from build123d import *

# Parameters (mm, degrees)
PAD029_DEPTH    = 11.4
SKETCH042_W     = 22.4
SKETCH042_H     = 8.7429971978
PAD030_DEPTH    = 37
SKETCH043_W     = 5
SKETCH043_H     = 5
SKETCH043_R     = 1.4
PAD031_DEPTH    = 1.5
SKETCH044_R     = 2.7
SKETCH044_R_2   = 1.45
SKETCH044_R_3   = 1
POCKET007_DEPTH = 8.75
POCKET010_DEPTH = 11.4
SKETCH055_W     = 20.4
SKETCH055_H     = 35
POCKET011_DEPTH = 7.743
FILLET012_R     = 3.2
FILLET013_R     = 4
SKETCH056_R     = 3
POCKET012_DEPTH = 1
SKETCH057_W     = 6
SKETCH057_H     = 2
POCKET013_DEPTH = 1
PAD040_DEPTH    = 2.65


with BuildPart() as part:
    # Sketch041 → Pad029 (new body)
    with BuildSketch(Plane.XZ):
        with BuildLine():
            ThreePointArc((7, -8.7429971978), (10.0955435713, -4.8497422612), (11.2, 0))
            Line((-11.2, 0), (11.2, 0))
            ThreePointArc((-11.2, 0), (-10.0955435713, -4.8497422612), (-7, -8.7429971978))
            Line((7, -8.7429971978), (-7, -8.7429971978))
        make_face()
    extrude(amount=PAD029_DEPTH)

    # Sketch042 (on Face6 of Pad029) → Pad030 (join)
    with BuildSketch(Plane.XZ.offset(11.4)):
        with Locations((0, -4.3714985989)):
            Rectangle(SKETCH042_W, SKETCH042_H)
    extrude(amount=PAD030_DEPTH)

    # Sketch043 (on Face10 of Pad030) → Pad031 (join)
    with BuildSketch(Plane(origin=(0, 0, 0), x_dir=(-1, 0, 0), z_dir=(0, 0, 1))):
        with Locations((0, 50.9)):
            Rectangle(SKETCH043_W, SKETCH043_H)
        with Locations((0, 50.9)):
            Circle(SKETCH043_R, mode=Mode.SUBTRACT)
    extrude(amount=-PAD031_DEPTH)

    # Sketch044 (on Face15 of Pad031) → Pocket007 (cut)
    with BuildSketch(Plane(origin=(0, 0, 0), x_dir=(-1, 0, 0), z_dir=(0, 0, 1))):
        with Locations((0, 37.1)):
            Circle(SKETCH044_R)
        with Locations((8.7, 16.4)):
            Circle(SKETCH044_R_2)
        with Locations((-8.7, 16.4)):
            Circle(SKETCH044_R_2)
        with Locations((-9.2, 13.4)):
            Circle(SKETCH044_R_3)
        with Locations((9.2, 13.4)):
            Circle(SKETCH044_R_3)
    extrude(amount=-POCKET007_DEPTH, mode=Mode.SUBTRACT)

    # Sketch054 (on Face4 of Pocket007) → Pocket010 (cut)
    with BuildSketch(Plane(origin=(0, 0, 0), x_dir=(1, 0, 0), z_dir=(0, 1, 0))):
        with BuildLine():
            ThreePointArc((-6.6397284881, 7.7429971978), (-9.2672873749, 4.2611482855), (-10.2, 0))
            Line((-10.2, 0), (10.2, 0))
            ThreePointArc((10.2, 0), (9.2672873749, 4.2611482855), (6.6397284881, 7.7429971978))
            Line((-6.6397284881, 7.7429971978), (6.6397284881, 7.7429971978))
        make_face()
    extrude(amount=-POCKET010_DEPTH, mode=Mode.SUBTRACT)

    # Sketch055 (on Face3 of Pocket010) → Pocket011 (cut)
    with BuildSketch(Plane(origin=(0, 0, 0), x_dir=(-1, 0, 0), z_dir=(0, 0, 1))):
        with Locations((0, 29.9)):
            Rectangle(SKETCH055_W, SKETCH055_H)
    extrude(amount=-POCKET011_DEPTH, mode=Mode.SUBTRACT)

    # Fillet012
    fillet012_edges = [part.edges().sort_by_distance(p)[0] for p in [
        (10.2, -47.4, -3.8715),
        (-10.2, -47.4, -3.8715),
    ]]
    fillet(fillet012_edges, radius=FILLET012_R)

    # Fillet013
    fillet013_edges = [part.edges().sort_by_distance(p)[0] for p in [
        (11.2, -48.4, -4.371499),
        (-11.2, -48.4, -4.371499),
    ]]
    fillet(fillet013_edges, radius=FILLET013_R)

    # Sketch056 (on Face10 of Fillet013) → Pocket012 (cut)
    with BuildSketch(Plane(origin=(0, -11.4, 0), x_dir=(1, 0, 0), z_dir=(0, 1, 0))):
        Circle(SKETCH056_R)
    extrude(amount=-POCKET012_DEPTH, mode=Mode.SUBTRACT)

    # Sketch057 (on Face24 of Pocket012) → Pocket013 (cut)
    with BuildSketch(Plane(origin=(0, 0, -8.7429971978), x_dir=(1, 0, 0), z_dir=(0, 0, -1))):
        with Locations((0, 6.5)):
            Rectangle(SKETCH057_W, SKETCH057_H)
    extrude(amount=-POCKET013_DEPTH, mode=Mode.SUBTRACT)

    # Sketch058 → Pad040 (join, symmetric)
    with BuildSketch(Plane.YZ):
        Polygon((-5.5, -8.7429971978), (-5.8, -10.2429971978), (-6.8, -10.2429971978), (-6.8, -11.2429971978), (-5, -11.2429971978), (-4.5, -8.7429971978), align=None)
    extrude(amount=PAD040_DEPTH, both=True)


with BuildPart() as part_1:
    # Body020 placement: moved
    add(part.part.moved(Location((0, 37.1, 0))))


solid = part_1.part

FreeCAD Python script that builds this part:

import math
import FreeCAD as App
import Part
import Sketcher
from FreeCAD import Vector
Q = App.Units.Quantity


def edges_at(feature, points):
    """Names of the edges that pass closest to the given points."""
    edges = feature.Shape.Edges
    near = lambda p: min(range(len(edges)), key=lambda i: edges[i].distToShape(Part.Vertex(*p))[0])
    return sorted({f"Edge{near(p) + 1}" for p in points})


def add_polygon(sketch, points):
    """Adds a closed chain of lines whose ends are joined by coincident constraints."""
    first, n = sketch.GeometryCount, len(points)
    for a, b in zip(points, points[1:] + points[:1]):
        sketch.addGeometry(Part.LineSegment(App.Vector(*a, 0), App.Vector(*b, 0)), False)
    for i in range(n):
        sketch.addConstraint(Sketcher.Constraint("Coincident", first + i, 2, first + (i + 1) % n, 1))

doc = App.newDocument("Part")
body = doc.addObject("PartDesign::Body", "Body")

# Sketch on XZ plane
sketch1 = doc.addObject("Sketcher::SketchObject", "Sketch")
body.addObject(sketch1)
sketch1.AttachmentSupport = (doc.XZ_Plane, [""])
sketch1.MapMode = "FlatFace"
sketch1.addGeometry([
    Part.ArcOfCircle(Part.Circle(Vector(0, 0, 0), Vector(0, 0, 1), 11.2), math.radians(-51.317813), math.radians(0)),
    Part.LineSegment(Vector(11.2, 0, 0), Vector(-11.2, 0, 0)),
    Part.ArcOfCircle(Part.Circle(Vector(0, 0, 0), Vector(0, 0, 1), 11.2), math.radians(180), math.radians(231.317813)),
    Part.LineSegment(Vector(-7, -8.742997, 0), Vector(7, -8.742997, 0)),
], False)
sketch1.addConstraint([
    Sketcher.Constraint("Coincident", 0, 2, 1, 1),
    Sketcher.Constraint("Coincident", 1, 2, 2, 1),
    Sketcher.Constraint("Coincident", 2, 2, 3, 1),
    Sketcher.Constraint("Coincident", 3, 2, 0, 1),
    Sketcher.Constraint("Horizontal", 1),
    Sketcher.Constraint("Horizontal", 3),
    Sketcher.Constraint("Coincident", 0, 3, -1, 1),
    Sketcher.Constraint("Coincident", 2, 3, -1, 1),
    Sketcher.Constraint("Equal", 0, 2),
    Sketcher.Constraint("PointOnObject", 0, 2, -1),
    Sketcher.Constraint("Radius", 0, Q("11.2 mm")),
    Sketcher.Constraint("DistanceX", 3, 1, 3, 2, Q("14 mm")),
])
pad1 = doc.addObject("PartDesign::Pad", "Pad")
body.addObject(pad1)
pad1.Profile = sketch1
pad1.Length = 11.4

# Sketch on XZ plane
sketch2 = doc.addObject("Sketcher::SketchObject", "Sketch001")
body.addObject(sketch2)
sketch2.AttachmentSupport = (doc.XZ_Plane, [""])
sketch2.MapMode = "FlatFace"
sketch2.AttachmentOffset = App.Placement(Vector(0, 0, 11.4), App.Rotation())
add_polygon(sketch2, [(-11.2, 0), (-11.2, -8.742997), (11.2, -8.742997), (11.2, 0)])  # lines 0-3
sketch2.addConstraint([
    Sketcher.Constraint("Vertical", 0),
    Sketcher.Constraint("Horizontal", 1),
    Sketcher.Constraint("Vertical", 2),
    Sketcher.Constraint("Horizontal", 3),
    Sketcher.Constraint("Symmetric", 2, 2, 3, 2, -1, 1),
    Sketcher.Constraint("DistanceX", 1, 1, 1, 2, Q("22.4 mm")),
    Sketcher.Constraint("DistanceY", 0, 2, 0, 1, Q("8.742997 mm")),
])
pad2 = doc.addObject("PartDesign::Pad", "Pad001")
body.addObject(pad2)
pad2.Profile = sketch2
pad2.Length = 37

# Sketch on XY plane
sketch3 = doc.addObject("Sketcher::SketchObject", "Sketch002")
body.addObject(sketch3)
sketch3.AttachmentSupport = (doc.XY_Plane, [""])
sketch3.MapMode = "FlatFace"
add_polygon(sketch3, [(2.5, -53.4), (2.5, -48.4), (-2.5, -48.4), (-2.5, -53.4)])  # lines 0-3
sketch3.addGeometry(Part.Circle(Vector(0, -50.9, 0), Vector(0, 0, 1), 1.4), False)  # 4
sketch3.addConstraint([
    Sketcher.Constraint("Vertical", 0),
    Sketcher.Constraint("Horizontal", 1),
    Sketcher.Constraint("Vertical", 2),
    Sketcher.Constraint("Horizontal", 3),
    Sketcher.Constraint("PointOnObject", 4, 3, -2),
    Sketcher.Constraint("Equal", 3, 0),
    Sketcher.Constraint("Diameter", 4, Q("2.8 mm")),
    Sketcher.Constraint("DistanceX", 1, 2, 1, 1, Q("5 mm")),
    Sketcher.Constraint("DistanceY", 4, 3, -1, 1, Q("50.9 mm")),
    Sketcher.Constraint("DistanceX", -1, 1, 0, 2, Q("2.5 mm")),
    Sketcher.Constraint("DistanceY", 0, 2, -1, 1, Q("48.4 mm")),
])
pad3 = doc.addObject("PartDesign::Pad", "Pad002")
body.addObject(pad3)
pad3.Profile = sketch3
pad3.Length = 1.5
pad3.Reversed = True

# Sketch on XY plane
sketch4 = doc.addObject("Sketcher::SketchObject", "Sketch003")
body.addObject(sketch4)
sketch4.AttachmentSupport = (doc.XY_Plane, [""])
sketch4.MapMode = "FlatFace"
sketch4.addGeometry([
    Part.Circle(Vector(0, -37.1, 0), Vector(0, 0, 1), 2.7),  # 0
    Part.Circle(Vector(-8.7, -16.4, 0), Vector(0, 0, 1), 1.45),  # 1
    Part.Circle(Vector(8.7, -16.4, 0), Vector(0, 0, 1), 1.45),  # 2
    Part.Circle(Vector(9.2, -13.4, 0), Vector(0, 0, 1), 1),  # 3
    Part.Circle(Vector(-9.2, -13.4, 0), Vector(0, 0, 1), 1),  # 4
], False)
sketch4.addConstraint([
    Sketcher.Constraint("Equal", 1, 2),
    Sketcher.Constraint("Equal", 3, 4),
    Sketcher.Constraint("Symmetric", 1, 3, 2, 3, -2),
    Sketcher.Constraint("Symmetric", 3, 3, 4, 3, -2),
    Sketcher.Constraint("PointOnObject", 0, 3, -2),
    Sketcher.Constraint("Diameter", 3, Q("2 mm")),
    Sketcher.Constraint("Diameter", 0, Q("5.4 mm")),
    Sketcher.Constraint("Diameter", 1, Q("2.9 mm")),
    Sketcher.Constraint("DistanceY", 2, 3, 3, 3, Q("3 mm")),
    Sketcher.Constraint("DistanceY", 0, 3, -1, 1, Q("37.1 mm")),
    Sketcher.Constraint("DistanceX", 1, 3, -1, 1, Q("8.7 mm")),
    Sketcher.Constraint("DistanceY", 1, 3, -1, 1, Q("16.4 mm")),
    Sketcher.Constraint("DistanceX", -1, 1, 3, 3, Q("9.2 mm")),
])
pocket1 = doc.addObject("PartDesign::Pocket", "Pocket")
body.addObject(pocket1)
pocket1.Profile = sketch4
pocket1.Length = 8.75

# Sketch on XZ plane
sketch5 = doc.addObject("Sketcher::SketchObject", "Sketch004")
body.addObject(sketch5)
sketch5.AttachmentSupport = (doc.XZ_Plane, [""])
sketch5.MapMode = "FlatFace"
sketch5.addGeometry([
    Part.ArcOfCircle(Part.Circle(Vector(0, 0, 0), Vector(0, 0, 1), 10.2), math.radians(180), math.radians(229.386449)),
    Part.LineSegment(Vector(-10.2, 0, 0), Vector(10.2, 0, 0)),
    Part.ArcOfCircle(Part.Circle(Vector(0, 0, 0), Vector(0, 0, 1), 10.2), math.radians(-49.386449), math.radians(0)),
    Part.LineSegment(Vector(6.639728, -7.742997, 0), Vector(-6.639728, -7.742997, 0)),
], False)
sketch5.addConstraint([
    Sketcher.Constraint("Coincident", 0, 1, 1, 1),
    Sketcher.Constraint("Coincident", 1, 2, 2, 2),
    Sketcher.Constraint("Coincident", 2, 1, 3, 1),
    Sketcher.Constraint("Coincident", 3, 2, 0, 2),
    Sketcher.Constraint("Horizontal", 1),
    Sketcher.Constraint("Horizontal", 3),
    Sketcher.Constraint("Coincident", 0, 3, -1, 1),
    Sketcher.Constraint("Coincident", 2, 3, -1, 1),
    Sketcher.Constraint("Equal", 0, 2),
    Sketcher.Constraint("PointOnObject", 0, 1, -1),
    Sketcher.Constraint("Radius", 0, Q("10.2 mm")),
    Sketcher.Constraint("DistanceX", 3, 2, 3, 1, Q("13.279457 mm")),
])
pocket2 = doc.addObject("PartDesign::Pocket", "Pocket001")
body.addObject(pocket2)
pocket2.Profile = sketch5
pocket2.Length = 11.4
pocket2.Reversed = True

# Sketch on XY plane
sketch6 = doc.addObject("Sketcher::SketchObject", "Sketch005")
body.addObject(sketch6)
sketch6.AttachmentSupport = (doc.XY_Plane, [""])
sketch6.MapMode = "FlatFace"
add_polygon(sketch6, [(10.2, -47.4), (10.2, -12.4), (-10.2, -12.4), (-10.2, -47.4)])  # lines 0-3
sketch6.addConstraint([
    Sketcher.Constraint("Vertical", 0),
    Sketcher.Constraint("Horizontal", 1),
    Sketcher.Constraint("Vertical", 2),
    Sketcher.Constraint("Horizontal", 3),
    Sketcher.Constraint("DistanceY", 0, 1, 0, 2, Q("35 mm")),
    Sketcher.Constraint("DistanceX", 1, 2, 1, 1, Q("20.4 mm")),
    Sketcher.Constraint("DistanceX", -1, 1, 0, 2, Q("10.2 mm")),
    Sketcher.Constraint("DistanceY", 0, 2, -1, 1, Q("12.4 mm")),
])
pocket3 = doc.addObject("PartDesign::Pocket", "Pocket002")
body.addObject(pocket3)
pocket3.Profile = sketch6
pocket3.Length = 7.743
doc.recompute()

fillet = doc.addObject("PartDesign::Fillet", "Fillet")
body.addObject(fillet)
fillet.Base = (pocket3, edges_at(pocket3, [(10.2, -47.4, -3.872), (-10.2, -47.4, -3.872)]))
fillet.Radius = 3.2
doc.recompute()

fillet2 = doc.addObject("PartDesign::Fillet", "Fillet001")
body.addObject(fillet2)
fillet2.Base = (fillet, edges_at(fillet, [(11.2, -48.4, -4.371), (-11.2, -48.4, -4.371)]))
fillet2.Radius = 4

# Sketch on XZ plane
sketch7 = doc.addObject("Sketcher::SketchObject", "Sketch006")
body.addObject(sketch7)
sketch7.AttachmentSupport = (doc.XZ_Plane, [""])
sketch7.MapMode = "FlatFace"
sketch7.AttachmentOffset = App.Placement(Vector(0, 0, 11.4), App.Rotation())
sketch7.addGeometry(Part.Circle(Vector(0, 0, 0), Vector(0, 0, 1), 3), False)
sketch7.addConstraint([
    Sketcher.Constraint("Coincident", 0, 3, -1, 1),
    Sketcher.Constraint("Diameter", 0, Q("6 mm")),
])
pocket4 = doc.addObject("PartDesign::Pocket", "Pocket003")
body.addObject(pocket4)
pocket4.Profile = sketch7
pocket4.Length = 1
pocket4.Reversed = True

# Sketch on XY plane
sketch8 = doc.addObject("Sketcher::SketchObject", "Sketch007")
body.addObject(sketch8)
sketch8.AttachmentSupport = (doc.XY_Plane, [""])
sketch8.MapMode = "FlatFace"
sketch8.AttachmentOffset = App.Placement(Vector(0, 0, -8.742997), App.Rotation())
add_polygon(sketch8, [(-3, -7.5), (-3, -5.5), (3, -5.5), (3, -7.5)])  # lines 0-3
sketch8.addConstraint([
    Sketcher.Constraint("Vertical", 0),
    Sketcher.Constraint("Horizontal", 1),
    Sketcher.Constraint("Vertical", 2),
    Sketcher.Constraint("Horizontal", 3),
    Sketcher.Constraint("DistanceX", 1, 1, 1, 2, Q("6 mm")),
    Sketcher.Constraint("DistanceY", 0, 1, 0, 2, Q("2 mm")),
    Sketcher.Constraint("DistanceX", 0, 2, -1, 1, Q("3 mm")),
    Sketcher.Constraint("DistanceY", 0, 2, -1, 1, Q("5.5 mm")),
])
pocket5 = doc.addObject("PartDesign::Pocket", "Pocket004")
body.addObject(pocket5)
pocket5.Profile = sketch8
pocket5.Length = 1
pocket5.Reversed = True

# Sketch on YZ plane
sketch9 = doc.addObject("Sketcher::SketchObject", "Sketch008")
body.addObject(sketch9)
sketch9.AttachmentSupport = (doc.YZ_Plane, [""])
sketch9.MapMode = "FlatFace"
add_polygon(sketch9, [(-5.5, -8.742997), (-5.8, -10.242997), (-6.8, -10.242997), (-6.8, -11.242997), (-5, -11.242997), (-4.5, -8.742997)])  # lines 0-5
sketch9.addConstraint([
    Sketcher.Constraint("Horizontal", 1),
    Sketcher.Constraint("Vertical", 2),
    Sketcher.Constraint("Horizontal", 3),
    Sketcher.Constraint("Horizontal", 5),
    Sketcher.Constraint("Parallel", 0, 4),
    Sketcher.Constraint("Equal", 1, 5),
    Sketcher.Constraint("Equal", 5, 2),
    Sketcher.Constraint("DistanceX", 1, 2, 1, 1, Q("1 mm")),
    Sketcher.Constraint("DistanceX", 3, 1, 3, 2, Q("1.8 mm")),
    Sketcher.Constraint("DistanceX", 3, 2, -1, 1, Q("5 mm")),
    Sketcher.Constraint("DistanceX", 4, 2, -1, 1, Q("4.5 mm")),
    Sketcher.Constraint("DistanceY", 0, 2, -1, 1, Q("10.242997 mm")),
])
pad4 = doc.addObject("PartDesign::Pad", "Pad003")
body.addObject(pad4)
pad4.Profile = sketch9
pad4.Length = 5.3
pad4.Midplane = True
body2 = doc.addObject("PartDesign::Body", "Body001")
doc.recompute()

body.Placement = App.Placement(Vector(0, 37.1, 0), App.Rotation(Vector(0, 0, 1), 0))
boolean = doc.addObject("PartDesign::Boolean", "Boolean")
body2.addObject(boolean)
boolean.Type = "Fuse"
boolean.addObjects([body])

doc.recompute()
